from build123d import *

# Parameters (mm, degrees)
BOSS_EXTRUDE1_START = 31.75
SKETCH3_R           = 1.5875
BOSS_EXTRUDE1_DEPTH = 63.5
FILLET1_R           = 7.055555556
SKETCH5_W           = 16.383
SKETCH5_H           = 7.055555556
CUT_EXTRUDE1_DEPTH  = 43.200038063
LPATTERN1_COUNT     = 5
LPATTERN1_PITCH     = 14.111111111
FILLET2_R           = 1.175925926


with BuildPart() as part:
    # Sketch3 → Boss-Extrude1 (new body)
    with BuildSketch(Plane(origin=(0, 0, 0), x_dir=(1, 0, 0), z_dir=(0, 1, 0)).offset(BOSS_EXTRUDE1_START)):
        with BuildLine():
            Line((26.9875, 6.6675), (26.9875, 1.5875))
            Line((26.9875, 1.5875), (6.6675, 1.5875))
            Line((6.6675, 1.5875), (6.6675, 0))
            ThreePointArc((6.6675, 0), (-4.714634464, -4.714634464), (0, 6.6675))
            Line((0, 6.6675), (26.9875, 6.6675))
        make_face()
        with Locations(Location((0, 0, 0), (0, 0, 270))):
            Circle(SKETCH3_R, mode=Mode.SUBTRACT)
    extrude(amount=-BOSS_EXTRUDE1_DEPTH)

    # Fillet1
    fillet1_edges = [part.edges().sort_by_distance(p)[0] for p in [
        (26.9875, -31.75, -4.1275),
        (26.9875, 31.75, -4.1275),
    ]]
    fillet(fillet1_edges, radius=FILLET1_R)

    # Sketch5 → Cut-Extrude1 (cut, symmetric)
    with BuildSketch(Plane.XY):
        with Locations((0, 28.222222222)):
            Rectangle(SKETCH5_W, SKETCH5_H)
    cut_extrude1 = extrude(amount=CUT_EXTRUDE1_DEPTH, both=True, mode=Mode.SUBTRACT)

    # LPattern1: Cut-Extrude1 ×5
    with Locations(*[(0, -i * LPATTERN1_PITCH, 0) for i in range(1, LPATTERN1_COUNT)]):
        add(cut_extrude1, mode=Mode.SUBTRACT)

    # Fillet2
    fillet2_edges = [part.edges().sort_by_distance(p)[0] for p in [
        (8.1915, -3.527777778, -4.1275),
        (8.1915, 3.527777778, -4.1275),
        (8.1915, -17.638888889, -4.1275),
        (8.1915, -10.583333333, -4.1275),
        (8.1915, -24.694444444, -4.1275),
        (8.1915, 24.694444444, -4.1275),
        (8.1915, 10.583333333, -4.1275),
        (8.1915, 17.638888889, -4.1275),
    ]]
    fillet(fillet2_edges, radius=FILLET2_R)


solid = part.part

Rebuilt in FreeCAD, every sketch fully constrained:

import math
import FreeCAD as App
import Part
import Sketcher
from FreeCAD import Vector
Q = App.Units.Quantity


def edges_at(feature, points):
    """Names of the edges that pass closest to the given points."""
    edges = feature.Shape.Edges
    near = lambda p: min(range(len(edges)), key=lambda i: edges[i].distToShape(Part.Vertex(*p))[0])
    return sorted({f"Edge{near(p) + 1}" for p in points})


def add_polygon(sketch, points):
    """Adds a closed chain of lines whose ends are joined by coincident constraints."""
    first, n = sketch.GeometryCount, len(points)
    for a, b in zip(points, points[1:] + points[:1]):
        sketch.addGeometry(Part.LineSegment(App.Vector(*a, 0), App.Vector(*b, 0)), False)
    for i in range(n):
        sketch.addConstraint(Sketcher.Constraint("Coincident", first + i, 2, first + (i + 1) % n, 1))

doc = App.newDocument("Part")
body = doc.addObject("PartDesign::Body", "Body")

sketch1 = doc.addObject("Sketcher::SketchObject", "Sketch")
body.addObject(sketch1)
sketch1.AttachmentSupport = (doc.XZ_Plane, [""])
sketch1.MapMode = "FlatFace"
sketch1.AttachmentOffset = App.Placement(Vector(0, 0, -1.25 * 25.4), App.Rotation())
sketch1.addGeometry([
    Part.LineSegment(Vector(27, -1.6, 0), Vector(27, -6.7, 0)),
    Part.LineSegment(Vector(27, -6.7, 0), Vector(0, -6.7, 0)),
    Part.ArcOfCircle(Part.Circle(Vector(0, 0, 0), Vector(0, 0, 1), 6.7), math.radians(0), math.radians(270)),
    Part.LineSegment(Vector(6.7, 0, 0), Vector(6.7, -1.6, 0)),
    Part.LineSegment(Vector(6.7, -1.6, 0), Vector(27, -1.6, 0)),
    Part.Circle(Vector(0, 0, 0), Vector(0, 0, 1), 1.6),
], False)
sketch1.addConstraint([
    Sketcher.Constraint("Coincident", 0, 2, 1, 1),
    Sketcher.Constraint("Tangent", 1, 2, 2, 2),
    Sketcher.Constraint("Tangent", 2, 1, 3, 1),
    Sketcher.Constraint("Coincident", 3, 2, 4, 1),
    Sketcher.Constraint("Coincident", 4, 2, 0, 1),
    Sketcher.Constraint("Vertical", 0),
    Sketcher.Constraint("Horizontal", 1),
    Sketcher.Constraint("Vertical", 3),
    Sketcher.Constraint("Horizontal", 4),
    Sketcher.Constraint("Coincident", 2, 3, -1, 1),
    Sketcher.Constraint("Coincident", 5, 3, -1, 1),
    Sketcher.Constraint("Diameter", 5, Q("0.125 in")),
    Sketcher.Constraint("DistanceX", 4, 1, 4, 2, Q("0.8 in")),
    Sketcher.Constraint("DistanceY", 0, 2, 0, 1, Q("0.2 in")),
    Sketcher.Constraint("Radius", 2, Q("0.2625 in")),
])
pad1 = doc.addObject("PartDesign::Pad", "Pad")
body.addObject(pad1)
pad1.Profile = sketch1
pad1.Length = Q("2.5 in")
doc.recompute()

fillet = doc.addObject("PartDesign::Fillet", "Fillet")
body.addObject(fillet)
fillet.Base = (pad1, edges_at(pad1, [(26.988, -31.75, -4.128), (26.988, 31.75, -4.128)]))
fillet.Radius = 7.055556

sketch2 = doc.addObject("Sketcher::SketchObject", "Sketch001")
body.addObject(sketch2)
sketch2.AttachmentSupport = (doc.XY_Plane, [""])
sketch2.MapMode = "FlatFace"
add_polygon(sketch2, [(-8, 32), (-8, 25), (8, 25), (8, 32)])
sketch2.addConstraint([
    Sketcher.Constraint("Vertical", 0),
    Sketcher.Constraint("Horizontal", 1),
    Sketcher.Constraint("Vertical", 2),
    Sketcher.Constraint("Horizontal", 3),
    Sketcher.Constraint("DistanceX", 1, 1, 1, 2, Q("0.645 in")),
    Sketcher.Constraint("DistanceY", -1, 1, 2, 2, Q("1.25 in")),
    Sketcher.Constraint("DistanceX", 0, 2, -1, 1, Q("0.3225 in")),
    Sketcher.Constraint("DistanceY", 0, 2, 0, 1, Q("7.055556 mm")),
])
pocket1 = doc.addObject("PartDesign::Pocket", "Pocket")
body.addObject(pocket1)
pocket1.Profile = sketch2
pocket1.Length = 86.400076
pocket1.Midplane = True
doc.recompute()

linearpattern = doc.addObject("PartDesign::LinearPattern", "LinearPattern")
body.addObject(linearpattern)
linearpattern.Originals = [pocket1]
linearpattern.Direction = (doc.Y_Axis, [""])
linearpattern.Mode = "offset"
linearpattern.Offset = 14.111111
linearpattern.Occurrences = 5
linearpattern.Reversed = True
body.Tip = linearpattern
doc.recompute()

fillet2 = doc.addObject("PartDesign::Fillet", "Fillet001")
body.addObject(fillet2)
fillet2.Base = (linearpattern, edges_at(linearpattern, [
    (8.191, -3.528, -4.128),
    (8.191, 3.528, -4.128),
    (8.191, -17.639, -4.128),
    (8.191, -10.583, -4.128),
    (8.191, -24.694, -4.128),
    (8.191, 24.694, -4.128),
    (8.191, 10.583, -4.128),
    (8.191, 17.639, -4.128),
]))
fillet2.Radius = 1.175926

doc.recompute()
